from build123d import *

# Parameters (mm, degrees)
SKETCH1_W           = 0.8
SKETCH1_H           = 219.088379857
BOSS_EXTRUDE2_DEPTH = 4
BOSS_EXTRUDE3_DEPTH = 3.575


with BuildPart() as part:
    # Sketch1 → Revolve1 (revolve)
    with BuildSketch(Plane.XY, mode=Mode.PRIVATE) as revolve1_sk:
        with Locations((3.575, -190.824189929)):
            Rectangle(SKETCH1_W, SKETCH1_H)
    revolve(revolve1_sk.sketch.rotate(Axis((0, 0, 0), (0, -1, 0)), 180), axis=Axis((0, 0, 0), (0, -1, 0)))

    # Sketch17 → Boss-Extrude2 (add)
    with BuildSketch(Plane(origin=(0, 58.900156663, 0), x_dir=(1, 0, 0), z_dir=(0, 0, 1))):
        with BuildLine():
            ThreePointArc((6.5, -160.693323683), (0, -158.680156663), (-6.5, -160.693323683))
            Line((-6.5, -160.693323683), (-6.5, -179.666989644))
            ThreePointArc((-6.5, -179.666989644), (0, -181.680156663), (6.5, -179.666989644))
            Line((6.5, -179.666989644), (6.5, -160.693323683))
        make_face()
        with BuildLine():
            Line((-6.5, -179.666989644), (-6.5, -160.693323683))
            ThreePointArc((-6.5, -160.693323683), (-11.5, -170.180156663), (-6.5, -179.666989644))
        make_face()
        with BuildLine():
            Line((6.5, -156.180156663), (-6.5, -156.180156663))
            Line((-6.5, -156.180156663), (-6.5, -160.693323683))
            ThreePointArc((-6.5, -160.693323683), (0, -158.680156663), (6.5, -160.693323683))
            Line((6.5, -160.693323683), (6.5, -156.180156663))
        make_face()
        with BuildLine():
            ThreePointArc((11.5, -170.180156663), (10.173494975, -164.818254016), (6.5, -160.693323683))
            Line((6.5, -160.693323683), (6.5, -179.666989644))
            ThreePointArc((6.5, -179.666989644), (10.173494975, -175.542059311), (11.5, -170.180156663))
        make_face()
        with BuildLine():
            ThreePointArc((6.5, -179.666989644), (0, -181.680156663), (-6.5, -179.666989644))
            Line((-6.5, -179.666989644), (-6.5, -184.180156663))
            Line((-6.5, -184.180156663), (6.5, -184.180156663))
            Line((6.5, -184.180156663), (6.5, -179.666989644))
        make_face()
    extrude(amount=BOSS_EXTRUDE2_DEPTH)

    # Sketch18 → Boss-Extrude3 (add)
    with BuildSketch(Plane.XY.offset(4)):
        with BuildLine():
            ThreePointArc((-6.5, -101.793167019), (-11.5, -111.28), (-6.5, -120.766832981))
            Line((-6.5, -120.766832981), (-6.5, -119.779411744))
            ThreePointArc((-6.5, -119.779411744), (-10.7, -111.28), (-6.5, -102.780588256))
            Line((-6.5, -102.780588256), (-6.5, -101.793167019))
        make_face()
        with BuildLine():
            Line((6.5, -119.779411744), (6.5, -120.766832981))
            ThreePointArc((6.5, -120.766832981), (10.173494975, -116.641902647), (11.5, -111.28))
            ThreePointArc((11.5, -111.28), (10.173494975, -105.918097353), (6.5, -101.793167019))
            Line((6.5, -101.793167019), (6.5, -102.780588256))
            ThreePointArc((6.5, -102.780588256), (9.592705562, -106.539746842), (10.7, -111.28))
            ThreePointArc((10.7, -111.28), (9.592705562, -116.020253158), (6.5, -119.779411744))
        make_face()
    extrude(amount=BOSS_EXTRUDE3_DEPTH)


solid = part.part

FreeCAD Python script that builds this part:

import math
import FreeCAD as App
import Part
import Sketcher
Q = App.Units.Quantity

doc = App.newDocument("Part")
body = doc.addObject("PartDesign::Body", "Body")

sketch1 = body.newObject("Sketcher::SketchObject", "Sketch")
sketch1.AttachmentSupport = (doc.getObject("XY_Plane"), [""])
sketch1.MapMode = "FlatFace"
sketch1.addGeometry([
    Part.LineSegment(App.Vector(3.2, -81.3, 0), App.Vector(3.2, -300.4, 0)),
    Part.LineSegment(App.Vector(3.2, -300.4, 0), App.Vector(4, -300.4, 0)),
    Part.LineSegment(App.Vector(4, -300.4, 0), App.Vector(4, -81.3, 0)),
    Part.LineSegment(App.Vector(4, -81.3, 0), App.Vector(3.2, -81.3, 0)),
], False)
sketch1.addConstraint([
    Sketcher.Constraint("Coincident", 0, 2, 1, 1),
    Sketcher.Constraint("Coincident", 1, 2, 2, 1),
    Sketcher.Constraint("Coincident", 2, 2, 3, 1),
    Sketcher.Constraint("Coincident", 3, 2, 0, 1),
    Sketcher.Constraint("Vertical", 0),
    Sketcher.Constraint("Horizontal", 1),
    Sketcher.Constraint("Vertical", 2),
    Sketcher.Constraint("Horizontal", 3),
    Sketcher.Constraint("DistanceX", 1, 1, 1, 2, Q("0.8 mm")),
    Sketcher.Constraint("DistanceY", 2, 2, -1, 1, Q("81.28 mm")),
    Sketcher.Constraint("DistanceX", -1, 1, 0, 2, Q("3.175 mm")),
    Sketcher.Constraint("DistanceY", 0, 2, 0, 1, Q("219.08838 mm")),
])
revolution = body.newObject("PartDesign::Revolution", "Revolution")
revolution.Profile = sketch1
revolution.ReferenceAxis = (sketch1, ["V_Axis"])
revolution.Angle = 360

sketch2 = body.newObject("Sketcher::SketchObject", "Sketch001")
sketch2.AttachmentSupport = (doc.getObject("XY_Plane"), [""])
sketch2.MapMode = "FlatFace"
sketch2.addGeometry([
    Part.ArcOfCircle(Part.Circle(App.Vector(0, -111.3, 0), App.Vector(0, 0, 1), 11.5), math.radians(124), math.radians(236)),
    Part.LineSegment(App.Vector(-6.5, -120.8, 0), App.Vector(-6.5, -125.3, 0)),
    Part.LineSegment(App.Vector(-6.5, -125.3, 0), App.Vector(6.5, -125.3, 0)),
    Part.LineSegment(App.Vector(6.5, -125.3, 0), App.Vector(6.5, -120.8, 0)),
    Part.ArcOfCircle(Part.Circle(App.Vector(0, -111.3, 0), App.Vector(0, 0, 1), 11.5), math.radians(-56), math.radians(0)),
    Part.ArcOfCircle(Part.Circle(App.Vector(0, -111.3, 0), App.Vector(0, 0, 1), 11.5), math.radians(0), math.radians(56)),
    Part.LineSegment(App.Vector(6.5, -101.8, 0), App.Vector(6.5, -97.3, 0)),
    Part.LineSegment(App.Vector(6.5, -97.3, 0), App.Vector(-6.5, -97.3, 0)),
    Part.LineSegment(App.Vector(-6.5, -97.3, 0), App.Vector(-6.5, -101.8, 0)),
], False)
sketch2.addConstraint([
    Sketcher.Constraint("Coincident", 0, 2, 1, 1),
    Sketcher.Constraint("Coincident", 1, 2, 2, 1),
    Sketcher.Constraint("Coincident", 2, 2, 3, 1),
    Sketcher.Constraint("Coincident", 3, 2, 4, 1),
    Sketcher.Constraint("Tangent", 4, 2, 5, 1),
    Sketcher.Constraint("Coincident", 5, 2, 6, 1),
    Sketcher.Constraint("Coincident", 6, 2, 7, 1),
    Sketcher.Constraint("Coincident", 7, 2, 8, 1),
    Sketcher.Constraint("Coincident", 8, 2, 0, 1),
    Sketcher.Constraint("Vertical", 1),
    Sketcher.Constraint("Horizontal", 2),
    Sketcher.Constraint("Vertical", 3),
    Sketcher.Constraint("Vertical", 6),
    Sketcher.Constraint("Horizontal", 7),
    Sketcher.Constraint("Vertical", 8),
    Sketcher.Constraint("Coincident", 4, 3, 0, 3),
    Sketcher.Constraint("Equal", 0, 4),
    Sketcher.Constraint("Equal", 4, 5),
    Sketcher.Constraint("Symmetric", 0, 2, 3, 2, -2),
    Sketcher.Constraint("Horizontal", 5, 3, 4, 2),
    Sketcher.Constraint("Horizontal", 5, 2, 8, 2),
    Sketcher.Constraint("Vertical", 3, 2, 5, 2),
    Sketcher.Constraint("Equal", 3, 6),
    Sketcher.Constraint("Radius", 0, Q("11.5 mm")),
    Sketcher.Constraint("DistanceX", 2, 1, 2, 2, Q("13 mm")),
    Sketcher.Constraint("DistanceY", 1, 2, 4, 3, Q("14 mm")),
    Sketcher.Constraint("DistanceY", 0, 3, -1, 1, Q("111.28 mm")),
])
pad1 = body.newObject("PartDesign::Pad", "Pad")
pad1.Profile = sketch2
pad1.Length = 4

sketch3 = body.newObject("Sketcher::SketchObject", "Sketch002")
sketch3.AttachmentSupport = (doc.getObject("XY_Plane"), [""])
sketch3.MapMode = "FlatFace"
sketch3.AttachmentOffset = App.Placement(App.Vector(0, 0, 4), App.Rotation())
sketch3.addGeometry([
    Part.ArcOfCircle(Part.Circle(App.Vector(0, -111.3, 0), App.Vector(0, 0, 1), 11.5), math.radians(124), math.radians(236)),
    Part.LineSegment(App.Vector(-6.5, -120.8, 0), App.Vector(-6.5, -119.8, 0)),
    Part.ArcOfCircle(Part.Circle(App.Vector(0, -111.3, 0), App.Vector(0, 0, 1), 10.7), math.radians(127), math.radians(233)),
    Part.LineSegment(App.Vector(-6.5, -102.8, 0), App.Vector(-6.5, -101.8, 0)),
    Part.LineSegment(App.Vector(6.5, -119.8, 0), App.Vector(6.5, -120.8, 0)),
    Part.ArcOfCircle(Part.Circle(App.Vector(0, -111.3, 0), App.Vector(0, 0, 1), 11.5), math.radians(-56), math.radians(0)),
    Part.ArcOfCircle(Part.Circle(App.Vector(0, -111.3, 0), App.Vector(0, 0, 1), 11.5), math.radians(0), math.radians(56)),
    Part.LineSegment(App.Vector(6.5, -101.8, 0), App.Vector(6.5, -102.8, 0)),
    Part.ArcOfCircle(Part.Circle(App.Vector(0, -111.3, 0), App.Vector(0, 0, 1), 10.7), math.radians(0), math.radians(53)),
    Part.ArcOfCircle(Part.Circle(App.Vector(0, -111.3, 0), App.Vector(0, 0, 1), 10.7), math.radians(-53), math.radians(0)),
], False)
sketch3.addConstraint([
    Sketcher.Constraint("Coincident", 0, 2, 1, 1),
    Sketcher.Constraint("Coincident", 1, 2, 2, 2),
    Sketcher.Constraint("Coincident", 2, 1, 3, 1),
    Sketcher.Constraint("Coincident", 3, 2, 0, 1),
    Sketcher.Constraint("Coincident", 4, 2, 5, 1),
    Sketcher.Constraint("Tangent", 5, 2, 6, 1),
    Sketcher.Constraint("Coincident", 6, 2, 7, 1),
    Sketcher.Constraint("Coincident", 7, 2, 8, 2),
    Sketcher.Constraint("Tangent", 8, 1, 9, 2),
    Sketcher.Constraint("Coincident", 9, 1, 4, 1),
    Sketcher.Constraint("Vertical", 1),
    Sketcher.Constraint("Vertical", 3),
    Sketcher.Constraint("Vertical", 4),
    Sketcher.Constraint("Vertical", 7),
    Sketcher.Constraint("Coincident", 2, 3, 0, 3),
    Sketcher.Constraint("Coincident", 5, 3, 0, 3),
    Sketcher.Constraint("Coincident", 8, 3, 0, 3),
    Sketcher.Constraint("Equal", 0, 5),
    Sketcher.Constraint("Equal", 5, 6),
    Sketcher.Constraint("Equal", 2, 8),
    Sketcher.Constraint("Equal", 8, 9),
    Sketcher.Constraint("Symmetric", 0, 2, 4, 2, -2),
    Sketcher.Constraint("Horizontal", 9, 3, 5, 2),
    Sketcher.Constraint("Horizontal", 3, 2, 6, 2),
    Sketcher.Constraint("Horizontal", 5, 2, 8, 1),
    Sketcher.Constraint("Vertical", 1, 2, 2, 1),
    Sketcher.Constraint("Radius", 0, Q("11.5 mm")),
    Sketcher.Constraint("Radius", 2, Q("10.7 mm")),
    Sketcher.Constraint("DistanceX", 4, 2, 5, 2, Q("5 mm")),
    Sketcher.Constraint("DistanceY", 0, 3, -1, 1, Q("111.28 mm")),
])
pad2 = body.newObject("PartDesign::Pad", "Pad001")
pad2.Profile = sketch3
pad2.Length = 3.575

doc.recompute()
